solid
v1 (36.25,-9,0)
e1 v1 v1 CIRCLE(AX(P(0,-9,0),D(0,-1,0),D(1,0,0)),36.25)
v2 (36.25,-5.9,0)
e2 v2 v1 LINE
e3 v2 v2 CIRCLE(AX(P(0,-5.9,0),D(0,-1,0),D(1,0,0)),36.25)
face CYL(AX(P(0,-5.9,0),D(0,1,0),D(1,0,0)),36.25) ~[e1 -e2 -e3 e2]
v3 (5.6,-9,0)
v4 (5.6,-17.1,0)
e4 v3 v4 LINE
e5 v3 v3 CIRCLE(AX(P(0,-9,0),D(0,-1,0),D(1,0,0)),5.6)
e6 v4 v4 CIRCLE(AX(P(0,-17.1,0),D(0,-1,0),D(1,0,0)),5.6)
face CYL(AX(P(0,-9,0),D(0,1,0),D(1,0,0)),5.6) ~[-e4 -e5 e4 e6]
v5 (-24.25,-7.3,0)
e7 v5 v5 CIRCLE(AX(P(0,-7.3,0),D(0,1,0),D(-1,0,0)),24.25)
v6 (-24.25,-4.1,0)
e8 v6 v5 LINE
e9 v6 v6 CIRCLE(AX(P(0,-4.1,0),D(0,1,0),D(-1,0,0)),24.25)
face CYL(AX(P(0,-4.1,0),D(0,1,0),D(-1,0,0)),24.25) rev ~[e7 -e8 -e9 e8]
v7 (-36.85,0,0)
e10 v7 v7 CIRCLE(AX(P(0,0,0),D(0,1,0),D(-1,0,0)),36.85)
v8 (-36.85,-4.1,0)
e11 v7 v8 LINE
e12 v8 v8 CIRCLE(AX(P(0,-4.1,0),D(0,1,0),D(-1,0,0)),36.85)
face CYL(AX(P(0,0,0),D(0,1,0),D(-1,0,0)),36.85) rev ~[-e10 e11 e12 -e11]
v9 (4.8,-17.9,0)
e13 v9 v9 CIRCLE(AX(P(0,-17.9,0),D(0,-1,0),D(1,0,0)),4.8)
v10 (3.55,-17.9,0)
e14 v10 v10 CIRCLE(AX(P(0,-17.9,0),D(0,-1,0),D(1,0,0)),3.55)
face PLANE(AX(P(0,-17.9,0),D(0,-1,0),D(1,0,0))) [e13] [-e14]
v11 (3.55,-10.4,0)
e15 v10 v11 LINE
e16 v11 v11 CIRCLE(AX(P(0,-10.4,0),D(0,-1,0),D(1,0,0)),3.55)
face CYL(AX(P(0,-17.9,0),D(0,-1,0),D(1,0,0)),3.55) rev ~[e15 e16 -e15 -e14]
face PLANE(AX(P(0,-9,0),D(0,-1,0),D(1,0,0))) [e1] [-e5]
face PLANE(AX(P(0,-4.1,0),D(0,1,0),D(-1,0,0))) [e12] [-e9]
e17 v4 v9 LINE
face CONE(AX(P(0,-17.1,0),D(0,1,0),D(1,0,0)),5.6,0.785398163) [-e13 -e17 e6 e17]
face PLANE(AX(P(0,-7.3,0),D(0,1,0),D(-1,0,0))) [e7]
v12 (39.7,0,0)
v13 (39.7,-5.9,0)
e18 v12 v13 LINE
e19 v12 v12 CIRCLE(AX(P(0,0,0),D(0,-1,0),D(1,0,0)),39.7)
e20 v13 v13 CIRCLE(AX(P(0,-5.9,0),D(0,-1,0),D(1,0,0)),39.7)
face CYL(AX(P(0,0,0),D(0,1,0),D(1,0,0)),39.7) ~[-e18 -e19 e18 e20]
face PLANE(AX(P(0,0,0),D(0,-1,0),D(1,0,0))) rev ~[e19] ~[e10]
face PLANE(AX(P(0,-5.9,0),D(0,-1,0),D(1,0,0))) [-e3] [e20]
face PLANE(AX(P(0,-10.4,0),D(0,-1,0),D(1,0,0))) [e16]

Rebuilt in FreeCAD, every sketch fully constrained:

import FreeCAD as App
import Part
import Sketcher
from FreeCAD import Vector


def edges_at(feature, points):
    """Names of the edges that pass closest to the given points."""
    edges = feature.Shape.Edges
    near = lambda p: min(range(len(edges)), key=lambda i: edges[i].distToShape(Part.Vertex(*p))[0])
    return sorted({f"Edge{near(p) + 1}" for p in points})

doc = App.newDocument("Part")
body = doc.addObject("PartDesign::Body", "Body")

sketch1 = doc.addObject("Sketcher::SketchObject", "Sketch")
body.addObject(sketch1)
sketch1.AttachmentSupport = (doc.XZ_Plane, [""])
sketch1.MapMode = "FlatFace"
sketch1.addGeometry(Part.Circle(Vector(0, 0, 0), Vector(0, 0, 1), 40), False)
sketch1.addConstraint(Sketcher.Constraint("Coincident", 0, 3, -1, 1))
sketch1.addConstraint(Sketcher.Constraint("Diameter", 0, 79.4))
pad1 = doc.addObject("PartDesign::Pad", "Pad")
body.addObject(pad1)
pad1.Profile = sketch1
pad1.Length = 5.9

sketch2 = doc.addObject("Sketcher::SketchObject", "Sketch001")
body.addObject(sketch2)
sketch2.AttachmentSupport = (doc.XZ_Plane, [""])
sketch2.MapMode = "FlatFace"
sketch2.AttachmentOffset = App.Placement(Vector(0, 0, 5.9), App.Rotation())
sketch2.addGeometry(Part.Circle(Vector(0, 0, 0), Vector(0, 0, 1), 36), False)
sketch2.addConstraint(Sketcher.Constraint("Coincident", 0, 3, -1, 1))
sketch2.addConstraint(Sketcher.Constraint("Diameter", 0, 72.5))
pad2 = doc.addObject("PartDesign::Pad", "Pad001")
body.addObject(pad2)
pad2.Profile = sketch2
pad2.Length = 3.1

sketch3 = doc.addObject("Sketcher::SketchObject", "Sketch002")
body.addObject(sketch3)
sketch3.AttachmentSupport = (doc.XZ_Plane, [""])
sketch3.MapMode = "FlatFace"
sketch3.AttachmentOffset = App.Placement(Vector(0, 0, 9), App.Rotation())
sketch3.addGeometry(Part.Circle(Vector(0, 0, 0), Vector(0, 0, 1), 6), False)
sketch3.addConstraint(Sketcher.Constraint("Coincident", 0, 3, -1, 1))
sketch3.addConstraint(Sketcher.Constraint("Diameter", 0, 11.2))
pad3 = doc.addObject("PartDesign::Pad", "Pad002")
body.addObject(pad3)
pad3.Profile = sketch3
pad3.Length = 8.9

sketch4 = doc.addObject("Sketcher::SketchObject", "Sketch003")
body.addObject(sketch4)
sketch4.AttachmentSupport = (doc.XZ_Plane, [""])
sketch4.MapMode = "FlatFace"
sketch4.addGeometry(Part.Circle(Vector(0, 0, 0), Vector(0, 0, 1), 37), False)
sketch4.addConstraint(Sketcher.Constraint("Coincident", 0, 3, -1, 1))
sketch4.addConstraint(Sketcher.Constraint("Diameter", 0, 73.7))
pocket1 = doc.addObject("PartDesign::Pocket", "Pocket")
body.addObject(pocket1)
pocket1.Profile = sketch4
pocket1.Length = 4.1
pocket1.Reversed = True

sketch5 = doc.addObject("Sketcher::SketchObject", "Sketch004")
body.addObject(sketch5)
sketch5.AttachmentSupport = (doc.XZ_Plane, [""])
sketch5.MapMode = "FlatFace"
sketch5.AttachmentOffset = App.Placement(Vector(0, 0, 4.1), App.Rotation())
sketch5.addGeometry(Part.Circle(Vector(0, 0, 0), Vector(0, 0, 1), 24), False)
sketch5.addConstraint(Sketcher.Constraint("Coincident", 0, 3, -1, 1))
sketch5.addConstraint(Sketcher.Constraint("Diameter", 0, 48.5))
pocket2 = doc.addObject("PartDesign::Pocket", "Pocket001")
body.addObject(pocket2)
pocket2.Profile = sketch5
pocket2.Length = 3.2
pocket2.Reversed = True

sketch6 = doc.addObject("Sketcher::SketchObject", "Sketch005")
body.addObject(sketch6)
sketch6.AttachmentSupport = (doc.XZ_Plane, [""])
sketch6.MapMode = "FlatFace"
sketch6.AttachmentOffset = App.Placement(Vector(0, 0, 17.9), App.Rotation())
sketch6.addGeometry(Part.Circle(Vector(0, 0, 0), Vector(0, 0, 1), 3.5), False)
sketch6.addConstraint(Sketcher.Constraint("Coincident", 0, 3, -1, 1))
sketch6.addConstraint(Sketcher.Constraint("Diameter", 0, 7.1))
pocket3 = doc.addObject("PartDesign::Pocket", "Pocket002")
body.addObject(pocket3)
pocket3.Profile = sketch6
pocket3.Length = 7.5
doc.recompute()

chamfer = doc.addObject("PartDesign::Chamfer", "Chamfer")
body.addObject(chamfer)
chamfer.Base = (pocket3, edges_at(pocket3, [(-5.6, -17.9, 0)]))
chamfer.Size = 0.8

doc.recompute()
